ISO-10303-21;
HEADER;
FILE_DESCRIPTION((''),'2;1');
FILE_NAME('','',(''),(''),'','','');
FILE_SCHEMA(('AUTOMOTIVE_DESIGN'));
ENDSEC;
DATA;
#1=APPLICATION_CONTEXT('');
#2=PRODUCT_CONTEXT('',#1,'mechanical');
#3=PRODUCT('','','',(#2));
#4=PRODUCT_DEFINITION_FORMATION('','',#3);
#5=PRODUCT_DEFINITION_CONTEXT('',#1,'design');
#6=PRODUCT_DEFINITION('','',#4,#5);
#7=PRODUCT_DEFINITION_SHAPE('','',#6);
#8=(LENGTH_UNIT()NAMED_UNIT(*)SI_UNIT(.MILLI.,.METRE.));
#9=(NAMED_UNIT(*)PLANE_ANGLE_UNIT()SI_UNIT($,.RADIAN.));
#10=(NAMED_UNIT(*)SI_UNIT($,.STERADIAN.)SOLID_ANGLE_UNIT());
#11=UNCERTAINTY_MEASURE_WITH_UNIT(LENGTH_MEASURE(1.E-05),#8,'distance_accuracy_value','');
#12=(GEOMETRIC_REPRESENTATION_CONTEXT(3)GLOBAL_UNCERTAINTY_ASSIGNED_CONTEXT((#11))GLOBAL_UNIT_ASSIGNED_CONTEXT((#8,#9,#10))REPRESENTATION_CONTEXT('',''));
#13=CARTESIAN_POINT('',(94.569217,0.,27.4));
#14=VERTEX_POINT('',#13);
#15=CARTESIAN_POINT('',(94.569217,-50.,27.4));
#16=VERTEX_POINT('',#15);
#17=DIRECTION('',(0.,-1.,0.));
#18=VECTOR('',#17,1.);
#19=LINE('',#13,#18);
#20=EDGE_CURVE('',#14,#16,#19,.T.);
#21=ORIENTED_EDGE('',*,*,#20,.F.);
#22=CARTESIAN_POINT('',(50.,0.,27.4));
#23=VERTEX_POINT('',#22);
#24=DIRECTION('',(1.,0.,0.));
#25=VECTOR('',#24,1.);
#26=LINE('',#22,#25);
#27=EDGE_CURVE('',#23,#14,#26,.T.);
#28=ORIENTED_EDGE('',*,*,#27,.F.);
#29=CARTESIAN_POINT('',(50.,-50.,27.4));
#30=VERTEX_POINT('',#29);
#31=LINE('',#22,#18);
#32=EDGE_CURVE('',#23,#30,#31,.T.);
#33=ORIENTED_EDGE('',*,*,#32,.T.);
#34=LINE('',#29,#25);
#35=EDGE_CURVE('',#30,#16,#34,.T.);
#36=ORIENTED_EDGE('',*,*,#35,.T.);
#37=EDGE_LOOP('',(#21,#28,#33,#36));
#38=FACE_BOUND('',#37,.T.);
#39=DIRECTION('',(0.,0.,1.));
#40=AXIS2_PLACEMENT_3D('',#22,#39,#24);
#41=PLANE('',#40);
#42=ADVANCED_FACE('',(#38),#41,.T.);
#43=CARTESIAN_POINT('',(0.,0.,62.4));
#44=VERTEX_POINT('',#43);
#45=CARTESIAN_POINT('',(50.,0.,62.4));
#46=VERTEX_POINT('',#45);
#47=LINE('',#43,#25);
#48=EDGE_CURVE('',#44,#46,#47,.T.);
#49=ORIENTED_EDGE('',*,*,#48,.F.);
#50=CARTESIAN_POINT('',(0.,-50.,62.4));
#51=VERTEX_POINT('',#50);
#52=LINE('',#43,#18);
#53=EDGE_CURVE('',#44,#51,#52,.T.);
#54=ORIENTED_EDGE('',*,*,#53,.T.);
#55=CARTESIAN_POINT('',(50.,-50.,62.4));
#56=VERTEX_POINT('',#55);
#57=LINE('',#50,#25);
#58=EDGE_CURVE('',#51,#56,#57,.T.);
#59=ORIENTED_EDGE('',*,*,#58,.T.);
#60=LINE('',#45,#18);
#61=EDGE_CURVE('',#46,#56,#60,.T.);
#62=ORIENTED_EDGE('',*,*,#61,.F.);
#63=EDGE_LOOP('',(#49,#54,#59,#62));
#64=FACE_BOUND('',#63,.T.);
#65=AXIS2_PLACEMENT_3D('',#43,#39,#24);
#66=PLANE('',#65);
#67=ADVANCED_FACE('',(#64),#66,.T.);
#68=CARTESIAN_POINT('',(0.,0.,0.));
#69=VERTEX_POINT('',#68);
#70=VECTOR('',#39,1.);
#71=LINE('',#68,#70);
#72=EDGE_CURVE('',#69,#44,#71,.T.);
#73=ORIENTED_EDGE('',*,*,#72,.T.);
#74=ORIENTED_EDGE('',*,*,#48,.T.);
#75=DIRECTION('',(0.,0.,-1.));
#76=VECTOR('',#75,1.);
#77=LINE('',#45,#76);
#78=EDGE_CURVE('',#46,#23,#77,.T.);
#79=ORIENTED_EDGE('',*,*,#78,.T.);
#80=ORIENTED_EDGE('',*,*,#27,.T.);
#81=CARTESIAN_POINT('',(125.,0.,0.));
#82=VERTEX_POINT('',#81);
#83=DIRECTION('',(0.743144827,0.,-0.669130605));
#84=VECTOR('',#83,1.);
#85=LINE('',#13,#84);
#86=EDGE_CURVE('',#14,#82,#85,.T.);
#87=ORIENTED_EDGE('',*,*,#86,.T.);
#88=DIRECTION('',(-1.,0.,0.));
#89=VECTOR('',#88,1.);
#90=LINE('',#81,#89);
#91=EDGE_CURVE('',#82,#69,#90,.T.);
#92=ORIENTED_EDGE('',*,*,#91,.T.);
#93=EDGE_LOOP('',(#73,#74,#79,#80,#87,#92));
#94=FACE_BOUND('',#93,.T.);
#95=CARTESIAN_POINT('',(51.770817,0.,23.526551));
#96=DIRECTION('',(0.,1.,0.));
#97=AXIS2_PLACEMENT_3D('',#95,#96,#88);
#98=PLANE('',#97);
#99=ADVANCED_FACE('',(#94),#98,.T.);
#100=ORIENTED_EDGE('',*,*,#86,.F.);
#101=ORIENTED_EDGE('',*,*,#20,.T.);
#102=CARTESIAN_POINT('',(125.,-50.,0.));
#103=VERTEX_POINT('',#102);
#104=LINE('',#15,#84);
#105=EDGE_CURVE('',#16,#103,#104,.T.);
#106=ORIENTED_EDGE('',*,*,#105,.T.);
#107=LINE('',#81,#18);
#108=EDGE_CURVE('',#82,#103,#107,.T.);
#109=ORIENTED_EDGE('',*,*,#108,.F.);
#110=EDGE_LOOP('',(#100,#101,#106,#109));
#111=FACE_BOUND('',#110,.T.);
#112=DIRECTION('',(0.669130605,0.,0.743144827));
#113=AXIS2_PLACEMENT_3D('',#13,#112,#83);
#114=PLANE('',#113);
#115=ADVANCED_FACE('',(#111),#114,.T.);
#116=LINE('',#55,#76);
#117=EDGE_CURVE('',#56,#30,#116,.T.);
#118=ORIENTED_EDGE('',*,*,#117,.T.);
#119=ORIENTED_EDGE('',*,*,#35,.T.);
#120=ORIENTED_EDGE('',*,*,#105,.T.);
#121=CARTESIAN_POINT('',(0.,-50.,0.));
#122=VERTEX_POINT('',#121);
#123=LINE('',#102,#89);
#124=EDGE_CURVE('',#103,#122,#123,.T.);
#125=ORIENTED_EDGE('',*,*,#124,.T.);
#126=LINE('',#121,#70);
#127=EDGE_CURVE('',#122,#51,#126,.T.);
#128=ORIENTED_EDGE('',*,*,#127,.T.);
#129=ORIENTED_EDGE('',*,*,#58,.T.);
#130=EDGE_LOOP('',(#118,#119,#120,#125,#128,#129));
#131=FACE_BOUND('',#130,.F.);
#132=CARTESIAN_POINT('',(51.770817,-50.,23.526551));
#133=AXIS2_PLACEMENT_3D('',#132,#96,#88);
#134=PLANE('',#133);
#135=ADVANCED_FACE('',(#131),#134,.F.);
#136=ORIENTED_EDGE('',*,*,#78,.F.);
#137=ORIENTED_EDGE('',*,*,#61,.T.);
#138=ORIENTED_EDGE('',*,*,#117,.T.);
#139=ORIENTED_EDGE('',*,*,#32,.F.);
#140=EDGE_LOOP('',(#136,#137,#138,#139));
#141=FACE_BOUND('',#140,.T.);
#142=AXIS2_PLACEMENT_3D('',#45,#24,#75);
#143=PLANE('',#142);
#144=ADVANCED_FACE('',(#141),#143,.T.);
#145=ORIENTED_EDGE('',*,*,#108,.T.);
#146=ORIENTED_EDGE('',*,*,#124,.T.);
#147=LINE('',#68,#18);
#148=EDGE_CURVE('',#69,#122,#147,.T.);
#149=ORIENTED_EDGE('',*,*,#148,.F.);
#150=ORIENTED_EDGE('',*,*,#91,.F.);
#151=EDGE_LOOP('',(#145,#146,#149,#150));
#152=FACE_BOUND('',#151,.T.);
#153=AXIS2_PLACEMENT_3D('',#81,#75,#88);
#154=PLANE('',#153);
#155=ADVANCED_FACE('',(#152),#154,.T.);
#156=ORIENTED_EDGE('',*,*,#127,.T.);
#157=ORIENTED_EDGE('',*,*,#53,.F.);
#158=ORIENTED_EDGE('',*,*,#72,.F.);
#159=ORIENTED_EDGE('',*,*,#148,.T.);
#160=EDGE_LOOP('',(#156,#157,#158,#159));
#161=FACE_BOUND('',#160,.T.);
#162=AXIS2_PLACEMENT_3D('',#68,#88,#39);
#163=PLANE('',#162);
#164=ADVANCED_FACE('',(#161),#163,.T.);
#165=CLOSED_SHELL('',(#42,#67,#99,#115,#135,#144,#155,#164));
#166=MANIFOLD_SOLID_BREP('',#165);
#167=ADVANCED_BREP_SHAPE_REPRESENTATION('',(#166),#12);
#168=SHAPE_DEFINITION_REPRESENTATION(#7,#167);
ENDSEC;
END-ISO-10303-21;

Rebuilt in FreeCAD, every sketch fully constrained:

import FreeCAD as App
import Part
import Sketcher
from FreeCAD import Vector
Q = App.Units.Quantity

doc = App.newDocument("Part")
body = doc.addObject("PartDesign::Body", "Body")

# Sketch on XZ plane
sketch1 = body.newObject("Sketcher::SketchObject", "Sketch")
sketch1.AttachmentSupport = (doc.getObject("XZ_Plane"), [""])
sketch1.MapMode = "FlatFace"
sketch1.addGeometry(Part.LineSegment(Vector(50, 62, 0), Vector(0, 62, 0)), False)
sketch1.addGeometry(Part.LineSegment(Vector(0, 62, 0), Vector(0, 0, 0)), False)
sketch1.addGeometry(Part.LineSegment(Vector(0, 0, 0), Vector(125, 0, 0)), False)
sketch1.addGeometry(Part.LineSegment(Vector(125, 0, 0), Vector(95, 27, 0)), False)
sketch1.addGeometry(Part.LineSegment(Vector(95, 27, 0), Vector(50, 27, 0)), False)
sketch1.addGeometry(Part.LineSegment(Vector(50, 27, 0), Vector(50, 62, 0)), False)
sketch1.addConstraint(Sketcher.Constraint("Coincident", 0, 2, 1, 1))
sketch1.addConstraint(Sketcher.Constraint("Coincident", 1, 2, 2, 1))
sketch1.addConstraint(Sketcher.Constraint("Coincident", 2, 2, 3, 1))
sketch1.addConstraint(Sketcher.Constraint("Coincident", 3, 2, 4, 1))
sketch1.addConstraint(Sketcher.Constraint("Coincident", 4, 2, 5, 1))
sketch1.addConstraint(Sketcher.Constraint("Coincident", 5, 2, 0, 1))
sketch1.addConstraint(Sketcher.Constraint("Horizontal", 0))
sketch1.addConstraint(Sketcher.Constraint("Vertical", 1))
sketch1.addConstraint(Sketcher.Constraint("Horizontal", 2))
sketch1.addConstraint(Sketcher.Constraint("Horizontal", 4))
sketch1.addConstraint(Sketcher.Constraint("Vertical", 5))
sketch1.addConstraint(Sketcher.Constraint("Coincident", 1, 2, -1, 1))
sketch1.addConstraint(Sketcher.Constraint("DistanceX", 0, 2, 0, 1, Q("50 mm")))
sketch1.addConstraint(Sketcher.Constraint("DistanceX", 2, 1, 2, 2, Q("125 mm")))
sketch1.addConstraint(Sketcher.Constraint("DistanceY", 5, 1, 5, 2, Q("35 mm")))
sketch1.addConstraint(Sketcher.Constraint("Angle", 3, Q("138 deg")))
sketch1.addConstraint(Sketcher.Constraint("DistanceY", 1, 2, 1, 1, Q("62.4 mm")))
pad1 = body.newObject("PartDesign::Pad", "Pad")
pad1.Profile = sketch1
pad1.Length = 50

doc.recompute()
